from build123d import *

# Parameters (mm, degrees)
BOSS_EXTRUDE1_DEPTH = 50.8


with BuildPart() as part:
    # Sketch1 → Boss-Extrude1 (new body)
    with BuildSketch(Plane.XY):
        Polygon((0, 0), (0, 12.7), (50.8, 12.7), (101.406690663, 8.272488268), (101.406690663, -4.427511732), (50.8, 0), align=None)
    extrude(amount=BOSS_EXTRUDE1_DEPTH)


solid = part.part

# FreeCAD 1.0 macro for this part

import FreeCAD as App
import Part
import Sketcher
from FreeCAD import Vector
Q = App.Units.Quantity

doc = App.newDocument("Part")
body = doc.addObject("PartDesign::Body", "Body")

sketch1 = body.newObject("Sketcher::SketchObject", "Sketch")
sketch1.AttachmentSupport = (doc.getObject("XY_Plane"), [""])
sketch1.MapMode = "FlatFace"
sketch1.addGeometry([
    Part.LineSegment(Vector(0, 12.7, 0), Vector(0, 0, 0)),
    Part.LineSegment(Vector(0, 0, 0), Vector(50.8, 0, 0)),
    Part.LineSegment(Vector(50.8, 0, 0), Vector(101.406691, -4.427512, 0)),
    Part.LineSegment(Vector(101.406691, -4.427512, 0), Vector(101.406691, 8.272488, 0)),
    Part.LineSegment(Vector(101.406691, 8.272488, 0), Vector(50.8, 12.7, 0)),
    Part.LineSegment(Vector(50.8, 12.7, 0), Vector(0, 12.7, 0)),
], False)
sketch1.addConstraint([
    Sketcher.Constraint("Coincident", 0, 2, 1, 1),
    Sketcher.Constraint("Coincident", 1, 2, 2, 1),
    Sketcher.Constraint("Coincident", 2, 2, 3, 1),
    Sketcher.Constraint("Coincident", 3, 2, 4, 1),
    Sketcher.Constraint("Coincident", 4, 2, 5, 1),
    Sketcher.Constraint("Coincident", 5, 2, 0, 1),
    Sketcher.Constraint("Vertical", 0),
    Sketcher.Constraint("Horizontal", 1),
    Sketcher.Constraint("Vertical", 3),
    Sketcher.Constraint("Horizontal", 5),
    Sketcher.Constraint("Coincident", 0, 2, -1, 1),
    Sketcher.Constraint("Parallel", 2, 4),
    Sketcher.Constraint("Vertical", 1, 2, 4, 2),
    Sketcher.Constraint("DistanceX", 1, 1, 1, 2, Q("2 in")),
    Sketcher.Constraint("Distance", 2, Q("2 in")),
    Sketcher.Constraint("DistanceY", 0, 2, 0, 1, Q("0.5 in")),
    Sketcher.Constraint("Angle", 2, Q("-5 deg")),
])
pad1 = body.newObject("PartDesign::Pad", "Pad")
pad1.Profile = sketch1
pad1.Length = Q("2 in")

doc.recompute()
